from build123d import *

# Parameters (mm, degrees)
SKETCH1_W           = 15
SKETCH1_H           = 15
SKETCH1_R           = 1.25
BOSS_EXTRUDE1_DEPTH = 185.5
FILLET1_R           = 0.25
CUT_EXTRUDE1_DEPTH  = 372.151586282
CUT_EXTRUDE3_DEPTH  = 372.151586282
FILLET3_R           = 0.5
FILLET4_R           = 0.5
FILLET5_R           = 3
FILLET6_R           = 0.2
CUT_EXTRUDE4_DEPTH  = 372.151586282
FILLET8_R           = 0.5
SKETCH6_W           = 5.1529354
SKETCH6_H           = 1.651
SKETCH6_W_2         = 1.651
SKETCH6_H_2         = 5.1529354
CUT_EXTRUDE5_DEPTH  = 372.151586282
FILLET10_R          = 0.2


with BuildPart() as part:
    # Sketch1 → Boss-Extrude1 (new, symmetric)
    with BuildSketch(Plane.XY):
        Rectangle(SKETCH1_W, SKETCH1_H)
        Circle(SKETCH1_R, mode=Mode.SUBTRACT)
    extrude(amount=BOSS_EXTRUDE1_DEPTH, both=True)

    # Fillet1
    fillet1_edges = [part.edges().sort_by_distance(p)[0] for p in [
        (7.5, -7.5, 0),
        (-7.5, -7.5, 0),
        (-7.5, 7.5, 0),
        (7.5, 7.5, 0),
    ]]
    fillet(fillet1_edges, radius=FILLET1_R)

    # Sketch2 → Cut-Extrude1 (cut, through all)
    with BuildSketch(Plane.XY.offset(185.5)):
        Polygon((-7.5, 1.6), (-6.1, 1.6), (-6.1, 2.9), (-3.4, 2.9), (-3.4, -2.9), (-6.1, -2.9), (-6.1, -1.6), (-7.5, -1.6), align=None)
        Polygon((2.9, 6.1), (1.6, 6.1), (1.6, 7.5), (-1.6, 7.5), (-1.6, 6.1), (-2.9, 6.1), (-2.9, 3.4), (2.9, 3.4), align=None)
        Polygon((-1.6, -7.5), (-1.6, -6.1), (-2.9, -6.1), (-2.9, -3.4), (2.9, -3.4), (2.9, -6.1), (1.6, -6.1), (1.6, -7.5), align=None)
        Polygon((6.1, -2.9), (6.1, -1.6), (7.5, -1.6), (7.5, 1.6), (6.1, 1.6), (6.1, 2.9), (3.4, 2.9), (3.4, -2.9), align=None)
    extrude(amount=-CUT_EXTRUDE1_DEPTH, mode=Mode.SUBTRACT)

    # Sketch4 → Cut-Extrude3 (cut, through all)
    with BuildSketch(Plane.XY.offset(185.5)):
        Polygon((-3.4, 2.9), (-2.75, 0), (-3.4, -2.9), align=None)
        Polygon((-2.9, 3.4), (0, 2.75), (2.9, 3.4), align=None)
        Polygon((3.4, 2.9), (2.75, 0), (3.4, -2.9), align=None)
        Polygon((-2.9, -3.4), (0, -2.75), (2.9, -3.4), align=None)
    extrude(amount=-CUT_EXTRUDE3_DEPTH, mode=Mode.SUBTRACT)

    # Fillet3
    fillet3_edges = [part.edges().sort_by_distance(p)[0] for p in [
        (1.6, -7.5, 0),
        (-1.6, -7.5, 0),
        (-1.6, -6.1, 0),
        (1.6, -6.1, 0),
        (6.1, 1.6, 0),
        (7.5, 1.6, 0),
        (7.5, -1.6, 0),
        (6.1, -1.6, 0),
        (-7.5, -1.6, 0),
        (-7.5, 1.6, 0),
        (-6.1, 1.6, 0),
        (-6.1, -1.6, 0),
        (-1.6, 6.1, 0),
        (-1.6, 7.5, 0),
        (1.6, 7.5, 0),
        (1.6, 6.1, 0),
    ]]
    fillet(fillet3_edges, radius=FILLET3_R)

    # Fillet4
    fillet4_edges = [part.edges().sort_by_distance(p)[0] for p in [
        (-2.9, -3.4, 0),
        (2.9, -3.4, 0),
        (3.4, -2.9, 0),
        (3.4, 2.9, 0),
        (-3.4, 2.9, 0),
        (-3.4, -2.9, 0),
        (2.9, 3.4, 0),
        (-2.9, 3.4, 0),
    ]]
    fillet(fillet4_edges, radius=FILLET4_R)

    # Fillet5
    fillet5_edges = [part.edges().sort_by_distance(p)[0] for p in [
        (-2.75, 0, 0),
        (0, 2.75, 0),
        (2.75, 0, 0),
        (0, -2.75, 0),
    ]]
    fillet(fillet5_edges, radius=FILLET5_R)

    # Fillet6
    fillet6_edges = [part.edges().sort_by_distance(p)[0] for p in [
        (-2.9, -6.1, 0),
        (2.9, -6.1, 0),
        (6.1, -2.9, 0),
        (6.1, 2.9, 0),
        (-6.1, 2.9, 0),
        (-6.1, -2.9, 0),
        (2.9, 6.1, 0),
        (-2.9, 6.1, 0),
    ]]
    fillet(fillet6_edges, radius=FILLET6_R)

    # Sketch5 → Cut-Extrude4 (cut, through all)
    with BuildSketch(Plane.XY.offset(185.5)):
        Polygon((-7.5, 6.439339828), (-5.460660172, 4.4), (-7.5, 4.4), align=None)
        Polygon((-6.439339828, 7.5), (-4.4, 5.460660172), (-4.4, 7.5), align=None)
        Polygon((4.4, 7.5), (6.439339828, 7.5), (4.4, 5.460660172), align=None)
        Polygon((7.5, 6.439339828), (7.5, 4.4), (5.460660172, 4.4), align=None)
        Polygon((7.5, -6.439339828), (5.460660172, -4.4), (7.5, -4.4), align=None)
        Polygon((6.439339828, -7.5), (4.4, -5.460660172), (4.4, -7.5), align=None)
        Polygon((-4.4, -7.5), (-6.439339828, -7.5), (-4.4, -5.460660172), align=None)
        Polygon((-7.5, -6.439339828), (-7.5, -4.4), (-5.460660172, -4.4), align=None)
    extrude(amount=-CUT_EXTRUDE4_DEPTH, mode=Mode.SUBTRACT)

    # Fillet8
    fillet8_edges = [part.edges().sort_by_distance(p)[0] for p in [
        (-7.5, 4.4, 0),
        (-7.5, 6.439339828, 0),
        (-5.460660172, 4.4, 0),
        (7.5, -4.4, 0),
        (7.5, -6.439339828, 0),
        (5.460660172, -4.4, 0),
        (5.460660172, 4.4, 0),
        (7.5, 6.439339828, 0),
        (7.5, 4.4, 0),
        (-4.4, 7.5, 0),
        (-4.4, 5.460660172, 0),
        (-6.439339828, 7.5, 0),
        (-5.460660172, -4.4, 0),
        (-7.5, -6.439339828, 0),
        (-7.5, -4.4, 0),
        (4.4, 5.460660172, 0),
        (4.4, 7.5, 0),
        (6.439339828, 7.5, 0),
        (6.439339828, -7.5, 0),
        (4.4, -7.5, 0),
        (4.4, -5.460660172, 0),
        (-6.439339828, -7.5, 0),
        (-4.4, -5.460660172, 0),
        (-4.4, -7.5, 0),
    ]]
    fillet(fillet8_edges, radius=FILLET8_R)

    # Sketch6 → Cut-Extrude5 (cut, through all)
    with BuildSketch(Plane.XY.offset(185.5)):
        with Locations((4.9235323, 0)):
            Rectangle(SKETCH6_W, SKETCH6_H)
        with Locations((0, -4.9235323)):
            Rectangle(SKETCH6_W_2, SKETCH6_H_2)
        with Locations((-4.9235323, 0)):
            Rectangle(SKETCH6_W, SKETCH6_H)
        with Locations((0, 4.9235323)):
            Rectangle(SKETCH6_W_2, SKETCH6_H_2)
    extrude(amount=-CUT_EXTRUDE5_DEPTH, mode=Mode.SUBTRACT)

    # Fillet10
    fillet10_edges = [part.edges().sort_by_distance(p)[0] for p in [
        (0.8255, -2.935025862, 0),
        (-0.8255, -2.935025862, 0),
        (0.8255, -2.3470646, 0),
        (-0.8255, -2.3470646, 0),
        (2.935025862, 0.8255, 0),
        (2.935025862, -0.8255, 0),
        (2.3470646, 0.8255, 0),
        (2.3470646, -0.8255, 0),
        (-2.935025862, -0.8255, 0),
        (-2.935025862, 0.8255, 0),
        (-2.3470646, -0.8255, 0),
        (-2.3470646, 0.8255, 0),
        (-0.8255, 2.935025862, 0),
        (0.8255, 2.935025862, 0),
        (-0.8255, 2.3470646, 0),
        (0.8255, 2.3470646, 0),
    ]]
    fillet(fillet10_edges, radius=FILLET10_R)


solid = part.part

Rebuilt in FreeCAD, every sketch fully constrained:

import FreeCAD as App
import Part
import Sketcher
from FreeCAD import Vector


def edges_at(feature, points):
    """Names of the edges that pass closest to the given points."""
    edges = feature.Shape.Edges
    near = lambda p: min(range(len(edges)), key=lambda i: edges[i].distToShape(Part.Vertex(*p))[0])
    return sorted({f"Edge{near(p) + 1}" for p in points})


def add_polygon(sketch, points):
    """Adds a closed chain of lines whose ends are joined by coincident constraints."""
    first, n = sketch.GeometryCount, len(points)
    for a, b in zip(points, points[1:] + points[:1]):
        sketch.addGeometry(Part.LineSegment(App.Vector(*a, 0), App.Vector(*b, 0)), False)
    for i in range(n):
        sketch.addConstraint(Sketcher.Constraint("Coincident", first + i, 2, first + (i + 1) % n, 1))

doc = App.newDocument("Part")
body = doc.addObject("PartDesign::Body", "Body")

# Sketch on XY plane
sketch1 = body.newObject("Sketcher::SketchObject", "Sketch")
sketch1.AttachmentSupport = (doc.getObject("XY_Plane"), [""])
sketch1.MapMode = "FlatFace"
add_polygon(sketch1, [(-7.5, 7.5), (-7.5, -7.5), (7.5, -7.5), (7.5, 7.5)])  # lines 0-3
sketch1.addGeometry(Part.Circle(Vector(0, 0, 0), Vector(0, 0, 1), 1.2), False)  # 4
sketch1.addConstraint([
    Sketcher.Constraint("Vertical", 0),
    Sketcher.Constraint("Horizontal", 1),
    Sketcher.Constraint("Vertical", 2),
    Sketcher.Constraint("Horizontal", 3),
    Sketcher.Constraint("Coincident", 4, 3, -1, 1),
    Sketcher.Constraint("Symmetric", 0, 2, 2, 2, -1, 1),
    Sketcher.Constraint("Equal", 3, 0),
    Sketcher.Constraint("Diameter", 4, 2.5),
    Sketcher.Constraint("DistanceX", 1, 1, 1, 2, 15.0),
])
pad1 = body.newObject("PartDesign::Pad", "Pad")
pad1.Profile = sketch1
pad1.Length = 371
pad1.Midplane = True
doc.recompute()

fillet = body.newObject("PartDesign::Fillet", "Fillet")
fillet.Base = (pad1, edges_at(pad1, [
    (7.5, -7.5, 0),
    (-7.5, -7.5, 0),
    (-7.5, 7.5, 0),
    (7.5, 7.5, 0),
]))
fillet.Radius = 0.25

# Sketch on XY plane
sketch2 = body.newObject("Sketcher::SketchObject", "Sketch001")
sketch2.AttachmentSupport = (doc.getObject("XY_Plane"), [""])
sketch2.MapMode = "FlatFace"
sketch2.AttachmentOffset = App.Placement(Vector(0, 0, 185.5), App.Rotation())
add_polygon(sketch2, [(-6.1, 1.6), (-7.5, 1.6), (-7.5, -1.6), (-6.1, -1.6), (-6.1, -2.9), (-3.4, -2.9), (-3.4, 2.9), (-6.1, 2.9)])  # lines 0-7
add_polygon(sketch2, [(2.9, 6.1), (1.6, 6.1), (1.6, 7.5), (-1.6, 7.5), (-1.6, 6.1), (-2.9, 6.1), (-2.9, 3.4), (2.9, 3.4)])  # lines 8-15
add_polygon(sketch2, [(-1.6, -6.1), (-1.6, -7.5), (1.6, -7.5), (1.6, -6.1), (2.9, -6.1), (2.9, -3.4), (-2.9, -3.4), (-2.9, -6.1)])  # lines 16-23
add_polygon(sketch2, [(6.1, -2.9), (6.1, -1.6), (7.5, -1.6), (7.5, 1.6), (6.1, 1.6), (6.1, 2.9), (3.4, 2.9), (3.4, -2.9)])  # lines 24-31
sketch2.addConstraint([
    Sketcher.Constraint("Horizontal", 0),
    Sketcher.Constraint("Vertical", 1),
    Sketcher.Constraint("Horizontal", 2),
    Sketcher.Constraint("Vertical", 3),
    Sketcher.Constraint("Horizontal", 4),
    Sketcher.Constraint("Vertical", 5),
    Sketcher.Constraint("Horizontal", 6),
    Sketcher.Constraint("Vertical", 7),
    Sketcher.Constraint("Horizontal", 8),
    Sketcher.Constraint("Vertical", 9),
    Sketcher.Constraint("Horizontal", 10),
    Sketcher.Constraint("Vertical", 11),
    Sketcher.Constraint("Horizontal", 12),
    Sketcher.Constraint("Vertical", 13),
    Sketcher.Constraint("Horizontal", 14),
    Sketcher.Constraint("Vertical", 15),
    Sketcher.Constraint("Vertical", 16),
    Sketcher.Constraint("Horizontal", 17),
    Sketcher.Constraint("Vertical", 18),
    Sketcher.Constraint("Horizontal", 19),
    Sketcher.Constraint("Vertical", 20),
    Sketcher.Constraint("Horizontal", 21),
    Sketcher.Constraint("Vertical", 22),
    Sketcher.Constraint("Horizontal", 23),
    Sketcher.Constraint("Vertical", 24),
    Sketcher.Constraint("Horizontal", 25),
    Sketcher.Constraint("Vertical", 26),
    Sketcher.Constraint("Horizontal", 27),
    Sketcher.Constraint("Vertical", 28),
    Sketcher.Constraint("Horizontal", 29),
    Sketcher.Constraint("Vertical", 30),
    Sketcher.Constraint("Horizontal", 31),
    Sketcher.Constraint("Symmetric", 9, 2, 16, 2, -1, 1),
    Sketcher.Constraint("Symmetric", 11, 2, 18, 2, -1, 1),
    Sketcher.Constraint("Symmetric", 13, 2, 20, 2, -1, 1),
    Sketcher.Constraint("Symmetric", 15, 2, 22, 2, -1, 1),
    Sketcher.Constraint("Symmetric", 7, 2, 24, 2, -1, 1),
    Sketcher.Constraint("Symmetric", 1, 2, 26, 2, -1, 1),
    Sketcher.Constraint("Symmetric", 3, 2, 28, 2, -1, 1),
    Sketcher.Constraint("Symmetric", 5, 2, 30, 2, -1, 1),
    Sketcher.Constraint("Symmetric", 8, 2, 11, 2, -2),
    Sketcher.Constraint("Symmetric", 2, 2, 24, 2, -2),
    Sketcher.Constraint("Horizontal", 6, 2, 28, 2),
    Sketcher.Constraint("Vertical", 15, 2, 19, 2),
    Sketcher.Constraint("Equal", 17, 1),
    Sketcher.Constraint("Equal", 23, 3),
    Sketcher.Constraint("Equal", 27, 9),
    Sketcher.Constraint("Equal", 31, 13),
    Sketcher.Constraint("DistanceX", 0, 2, 0, 1, 1.4),
    Sketcher.Constraint("DistanceX", 4, 1, 4, 2, 2.7),
    Sketcher.Constraint("DistanceX", 8, 2, 8, 1, 1.3),
    Sketcher.Constraint("DistanceX", 10, 2, 10, 1, 3.2),
    Sketcher.Constraint("DistanceX", 5, 2, 8, 2, 5.0),
    Sketcher.Constraint("DistanceY", 4, 2, 8, 2, 9.0),
])
pocket1 = body.newObject("PartDesign::Pocket", "Pocket")
pocket1.Profile = sketch2
pocket1.Type = "ThroughAll"

# Sketch on XY plane
sketch3 = body.newObject("Sketcher::SketchObject", "Sketch002")
sketch3.AttachmentSupport = (doc.getObject("XY_Plane"), [""])
sketch3.MapMode = "FlatFace"
sketch3.AttachmentOffset = App.Placement(Vector(0, 0, 185.5), App.Rotation())
add_polygon(sketch3, [(-2.8, 0), (-3.4, 2.9), (-3.4, -2.9)])  # lines 0-2
add_polygon(sketch3, [(-2.9, 3.4), (0, 2.8), (2.9, 3.4)])  # lines 3-5
add_polygon(sketch3, [(3.4, 2.9), (2.8, 0), (3.4, -2.9)])  # lines 6-8
add_polygon(sketch3, [(0, -2.8), (-2.9, -3.4), (2.9, -3.4)])  # lines 9-11
sketch3.addConstraint([
    Sketcher.Constraint("Vertical", 1),
    Sketcher.Constraint("Horizontal", 5),
    Sketcher.Constraint("Vertical", 8),
    Sketcher.Constraint("Horizontal", 10),
    Sketcher.Constraint("Symmetric", 2, 2, 6, 2, -1, 1),
    Sketcher.Constraint("Symmetric", 0, 2, 7, 2, -1, 1),
    Sketcher.Constraint("Symmetric", 4, 2, 9, 2, -1, 1),
    Sketcher.Constraint("Symmetric", 3, 2, 11, 2, -1, 1),
    Sketcher.Constraint("PointOnObject", 2, 2, -1),
    Sketcher.Constraint("PointOnObject", 3, 2, -2),
    Sketcher.Constraint("Perpendicular", 2, 3),
    Sketcher.Constraint("Perpendicular", 0, 4),
    Sketcher.Constraint("Perpendicular", 3, 6),
    Sketcher.Constraint("Perpendicular", 6, 11),
    Sketcher.Constraint("Horizontal", 1, 2, 7, 2),
    Sketcher.Constraint("Equal", 10, 1),
    Sketcher.Constraint("DistanceX", 5, 2, 5, 1, 5.8),
    Sketcher.Constraint("DistanceX", 0, 2, -1, 1, 3.4),
    Sketcher.Constraint("DistanceY", -1, 1, 4, 2, 3.4),
    Sketcher.Constraint("DistanceX", 2, 2, 6, 2, 5.5),
])
pocket2 = body.newObject("PartDesign::Pocket", "Pocket001")
pocket2.Profile = sketch3
pocket2.Type = "ThroughAll"
doc.recompute()

fillet2 = body.newObject("PartDesign::Fillet", "Fillet001")
fillet2.Base = (pocket2, edges_at(pocket2, [
    (1.6, -7.5, 0),
    (-1.6, -7.5, 0),
    (-1.6, -6.1, 0),
    (1.6, -6.1, 0),
    (6.1, 1.6, 0),
    (7.5, 1.6, 0),
    (7.5, -1.6, 0),
    (6.1, -1.6, 0),
    (-7.5, -1.6, 0),
    (-7.5, 1.6, 0),
    (-6.1, 1.6, 0),
    (-6.1, -1.6, 0),
    (-1.6, 6.1, 0),
    (-1.6, 7.5, 0),
    (1.6, 7.5, 0),
    (1.6, 6.1, 0),
]))
fillet2.Radius = 0.5
doc.recompute()

fillet3 = body.newObject("PartDesign::Fillet", "Fillet002")
fillet3.Base = (fillet2, edges_at(fillet2, [
    (-2.9, -3.4, 0),
    (2.9, -3.4, 0),
    (3.4, -2.9, 0),
    (3.4, 2.9, 0),
    (-3.4, 2.9, 0),
    (-3.4, -2.9, 0),
    (2.9, 3.4, 0),
    (-2.9, 3.4, 0),
]))
fillet3.Radius = 0.5
doc.recompute()

fillet4 = body.newObject("PartDesign::Fillet", "Fillet003")
fillet4.Base = (fillet3, edges_at(fillet3, [
    (-2.75, 0, 0),
    (0, 2.75, 0),
    (2.75, 0, 0),
    (0, -2.75, 0),
]))
fillet4.Radius = 3
doc.recompute()

fillet5 = body.newObject("PartDesign::Fillet", "Fillet004")
fillet5.Base = (fillet4, edges_at(fillet4, [
    (-2.9, -6.1, 0),
    (2.9, -6.1, 0),
    (6.1, -2.9, 0),
    (6.1, 2.9, 0),
    (-6.1, 2.9, 0),
    (-6.1, -2.9, 0),
    (2.9, 6.1, 0),
    (-2.9, 6.1, 0),
]))
fillet5.Radius = 0.2

# Sketch on XY plane
sketch4 = body.newObject("Sketcher::SketchObject", "Sketch003")
sketch4.AttachmentSupport = (doc.getObject("XY_Plane"), [""])
sketch4.MapMode = "FlatFace"
sketch4.AttachmentOffset = App.Placement(Vector(0, 0, 185.5), App.Rotation())
add_polygon(sketch4, [(-5.5, 4.4), (-7.5, 6.4), (-7.5, 4.4)])  # lines 0-2
add_polygon(sketch4, [(-6.4, 7.5), (-4.4, 5.5), (-4.4, 7.5)])  # lines 3-5
add_polygon(sketch4, [(6.4, 7.5), (4.4, 7.5), (4.4, 5.5)])  # lines 6-8
add_polygon(sketch4, [(7.5, 4.4), (7.5, 6.4), (5.5, 4.4)])  # lines 9-11
add_polygon(sketch4, [(5.5, -4.4), (7.5, -6.4), (7.5, -4.4)])  # lines 12-14
add_polygon(sketch4, [(6.4, -7.5), (4.4, -5.5), (4.4, -7.5)])  # lines 15-17
add_polygon(sketch4, [(-6.4, -7.5), (-4.4, -7.5), (-4.4, -5.5)])  # lines 18-20
add_polygon(sketch4, [(-7.5, -4.4), (-7.5, -6.4), (-5.5, -4.4)])  # lines 21-23
sketch4.addConstraint([
    Sketcher.Constraint("Vertical", 1),
    Sketcher.Constraint("Horizontal", 2),
    Sketcher.Constraint("Vertical", 4),
    Sketcher.Constraint("Horizontal", 5),
    Sketcher.Constraint("Horizontal", 6),
    Sketcher.Constraint("Vertical", 7),
    Sketcher.Constraint("Vertical", 9),
    Sketcher.Constraint("Horizontal", 11),
    Sketcher.Constraint("Vertical", 13),
    Sketcher.Constraint("Horizontal", 14),
    Sketcher.Constraint("Vertical", 16),
    Sketcher.Constraint("Horizontal", 17),
    Sketcher.Constraint("Horizontal", 18),
    Sketcher.Constraint("Vertical", 19),
    Sketcher.Constraint("Vertical", 21),
    Sketcher.Constraint("Horizontal", 23),
    Sketcher.Constraint("Symmetric", 0, 2, 12, 2, -1, 1),
    Sketcher.Constraint("Symmetric", 2, 2, 14, 2, -1, 1),
    Sketcher.Constraint("Symmetric", 3, 2, 15, 2, -1, 1),
    Sketcher.Constraint("Symmetric", 5, 2, 17, 2, -1, 1),
    Sketcher.Constraint("Symmetric", 6, 2, 18, 2, -1, 1),
    Sketcher.Constraint("Symmetric", 9, 2, 21, 2, -1, 1),
    Sketcher.Constraint("Symmetric", 10, 2, 22, 2, -1, 1),
    Sketcher.Constraint("Symmetric", 4, 2, 6, 2, -2),
    Sketcher.Constraint("Symmetric", 0, 2, 9, 2, -2),
    Sketcher.Constraint("Symmetric", 2, 2, 10, 2, -2),
    Sketcher.Constraint("Parallel", 0, 3),
    Sketcher.Constraint("Perpendicular", 3, 8),
    Sketcher.Constraint("Parallel", 8, 10),
    Sketcher.Constraint("Perpendicular", 15, 20),
    Sketcher.Constraint("Horizontal", 3, 2, 7, 2),
    Sketcher.Constraint("Horizontal", 15, 2, 19, 2),
    Sketcher.Constraint("Equal", 2, 5),
    Sketcher.Constraint("DistanceX", 0, 2, -1, 1, 7.5),
    Sketcher.Constraint("DistanceY", -1, 1, 1, 2, 4.4),
    Sketcher.Constraint("DistanceX", 3, 2, -1, 1, 4.4),
    Sketcher.Constraint("DistanceY", -1, 1, 4, 2, 7.5),
    Sketcher.Constraint("DistanceX", 2, 1, 2, 2, 2.03934),
])
pocket3 = body.newObject("PartDesign::Pocket", "Pocket002")
pocket3.Profile = sketch4
pocket3.Type = "ThroughAll"
doc.recompute()

fillet6 = body.newObject("PartDesign::Fillet", "Fillet005")
fillet6.Base = (pocket3, edges_at(pocket3, [
    (-7.5, 4.4, 0),
    (-7.5, 6.439, 0),
    (-5.461, 4.4, 0),
    (7.5, -4.4, 0),
    (7.5, -6.439, 0),
    (5.461, -4.4, 0),
    (5.461, 4.4, 0),
    (7.5, 6.439, 0),
    (7.5, 4.4, 0),
    (-4.4, 7.5, 0),
    (-4.4, 5.461, 0),
    (-6.439, 7.5, 0),
    (-5.461, -4.4, 0),
    (-7.5, -6.439, 0),
    (-7.5, -4.4, 0),
    (4.4, 5.461, 0),
    (4.4, 7.5, 0),
    (6.439, 7.5, 0),
    (6.439, -7.5, 0),
    (4.4, -7.5, 0),
    (4.4, -5.461, 0),
    (-6.439, -7.5, 0),
    (-4.4, -5.461, 0),
    (-4.4, -7.5, 0),
]))
fillet6.Radius = 0.5

# Sketch on XY plane
sketch5 = body.newObject("Sketcher::SketchObject", "Sketch004")
sketch5.AttachmentSupport = (doc.getObject("XY_Plane"), [""])
sketch5.MapMode = "FlatFace"
sketch5.AttachmentOffset = App.Placement(Vector(0, 0, 185.5), App.Rotation())
add_polygon(sketch5, [(2.3, 0.8), (2.3, -0.8), (7.5, -0.8), (7.5, 0.8)])  # lines 0-3
add_polygon(sketch5, [(-0.8, -2.3), (-0.8, -7.5), (0.8, -7.5), (0.8, -2.3)])  # lines 4-7
add_polygon(sketch5, [(-7.5, 0.8), (-7.5, -0.8), (-2.3, -0.8), (-2.3, 0.8)])  # lines 8-11
add_polygon(sketch5, [(-0.8, 7.5), (-0.8, 2.3), (0.8, 2.3), (0.8, 7.5)])  # lines 12-15
sketch5.addConstraint([
    Sketcher.Constraint("Vertical", 0),
    Sketcher.Constraint("Horizontal", 1),
    Sketcher.Constraint("Vertical", 2),
    Sketcher.Constraint("Horizontal", 3),
    Sketcher.Constraint("Vertical", 4),
    Sketcher.Constraint("Horizontal", 5),
    Sketcher.Constraint("Vertical", 6),
    Sketcher.Constraint("Horizontal", 7),
    Sketcher.Constraint("Vertical", 8),
    Sketcher.Constraint("Horizontal", 9),
    Sketcher.Constraint("Vertical", 10),
    Sketcher.Constraint("Horizontal", 11),
    Sketcher.Constraint("Vertical", 12),
    Sketcher.Constraint("Horizontal", 13),
    Sketcher.Constraint("Vertical", 14),
    Sketcher.Constraint("Horizontal", 15),
    Sketcher.Constraint("Symmetric", 2, 2, 8, 2, -1, 1),
    Sketcher.Constraint("Symmetric", 0, 2, 10, 2, -1, 1),
    Sketcher.Constraint("Symmetric", 6, 2, 12, 2, -1, 1),
    Sketcher.Constraint("Symmetric", 4, 2, 14, 2, -1, 1),
    Sketcher.Constraint("Horizontal", 1, 2, 8, 2),
    Sketcher.Constraint("Vertical", 7, 2, 12, 2),
    Sketcher.Constraint("Equal", 15, 0),
    Sketcher.Constraint("Equal", 11, 4),
    Sketcher.Constraint("DistanceX", -1, 1, 1, 2, 7.5),
    Sketcher.Constraint("DistanceY", 4, 2, -1, 1, 7.5),
    Sketcher.Constraint("DistanceX", 5, 1, 5, 2, 1.651),
    Sketcher.Constraint("DistanceX", 1, 1, 1, 2, 5.152935),
])
pocket4 = body.newObject("PartDesign::Pocket", "Pocket003")
pocket4.Profile = sketch5
pocket4.Type = "ThroughAll"
doc.recompute()

fillet7 = body.newObject("PartDesign::Fillet", "Fillet006")
fillet7.Base = (pocket4, edges_at(pocket4, [
    (0.826, -2.935, 0),
    (-0.826, -2.935, 0),
    (0.826, -2.347, 0),
    (-0.826, -2.347, 0),
    (2.935, 0.826, 0),
    (2.935, -0.826, 0),
    (2.347, 0.826, 0),
    (2.347, -0.826, 0),
    (-2.935, -0.826, 0),
    (-2.935, 0.826, 0),
    (-2.347, -0.826, 0),
    (-2.347, 0.826, 0),
    (-0.826, 2.935, 0),
    (0.826, 2.935, 0),
    (-0.826, 2.347, 0),
    (0.826, 2.347, 0),
]))
fillet7.Radius = 0.2

doc.recompute()
